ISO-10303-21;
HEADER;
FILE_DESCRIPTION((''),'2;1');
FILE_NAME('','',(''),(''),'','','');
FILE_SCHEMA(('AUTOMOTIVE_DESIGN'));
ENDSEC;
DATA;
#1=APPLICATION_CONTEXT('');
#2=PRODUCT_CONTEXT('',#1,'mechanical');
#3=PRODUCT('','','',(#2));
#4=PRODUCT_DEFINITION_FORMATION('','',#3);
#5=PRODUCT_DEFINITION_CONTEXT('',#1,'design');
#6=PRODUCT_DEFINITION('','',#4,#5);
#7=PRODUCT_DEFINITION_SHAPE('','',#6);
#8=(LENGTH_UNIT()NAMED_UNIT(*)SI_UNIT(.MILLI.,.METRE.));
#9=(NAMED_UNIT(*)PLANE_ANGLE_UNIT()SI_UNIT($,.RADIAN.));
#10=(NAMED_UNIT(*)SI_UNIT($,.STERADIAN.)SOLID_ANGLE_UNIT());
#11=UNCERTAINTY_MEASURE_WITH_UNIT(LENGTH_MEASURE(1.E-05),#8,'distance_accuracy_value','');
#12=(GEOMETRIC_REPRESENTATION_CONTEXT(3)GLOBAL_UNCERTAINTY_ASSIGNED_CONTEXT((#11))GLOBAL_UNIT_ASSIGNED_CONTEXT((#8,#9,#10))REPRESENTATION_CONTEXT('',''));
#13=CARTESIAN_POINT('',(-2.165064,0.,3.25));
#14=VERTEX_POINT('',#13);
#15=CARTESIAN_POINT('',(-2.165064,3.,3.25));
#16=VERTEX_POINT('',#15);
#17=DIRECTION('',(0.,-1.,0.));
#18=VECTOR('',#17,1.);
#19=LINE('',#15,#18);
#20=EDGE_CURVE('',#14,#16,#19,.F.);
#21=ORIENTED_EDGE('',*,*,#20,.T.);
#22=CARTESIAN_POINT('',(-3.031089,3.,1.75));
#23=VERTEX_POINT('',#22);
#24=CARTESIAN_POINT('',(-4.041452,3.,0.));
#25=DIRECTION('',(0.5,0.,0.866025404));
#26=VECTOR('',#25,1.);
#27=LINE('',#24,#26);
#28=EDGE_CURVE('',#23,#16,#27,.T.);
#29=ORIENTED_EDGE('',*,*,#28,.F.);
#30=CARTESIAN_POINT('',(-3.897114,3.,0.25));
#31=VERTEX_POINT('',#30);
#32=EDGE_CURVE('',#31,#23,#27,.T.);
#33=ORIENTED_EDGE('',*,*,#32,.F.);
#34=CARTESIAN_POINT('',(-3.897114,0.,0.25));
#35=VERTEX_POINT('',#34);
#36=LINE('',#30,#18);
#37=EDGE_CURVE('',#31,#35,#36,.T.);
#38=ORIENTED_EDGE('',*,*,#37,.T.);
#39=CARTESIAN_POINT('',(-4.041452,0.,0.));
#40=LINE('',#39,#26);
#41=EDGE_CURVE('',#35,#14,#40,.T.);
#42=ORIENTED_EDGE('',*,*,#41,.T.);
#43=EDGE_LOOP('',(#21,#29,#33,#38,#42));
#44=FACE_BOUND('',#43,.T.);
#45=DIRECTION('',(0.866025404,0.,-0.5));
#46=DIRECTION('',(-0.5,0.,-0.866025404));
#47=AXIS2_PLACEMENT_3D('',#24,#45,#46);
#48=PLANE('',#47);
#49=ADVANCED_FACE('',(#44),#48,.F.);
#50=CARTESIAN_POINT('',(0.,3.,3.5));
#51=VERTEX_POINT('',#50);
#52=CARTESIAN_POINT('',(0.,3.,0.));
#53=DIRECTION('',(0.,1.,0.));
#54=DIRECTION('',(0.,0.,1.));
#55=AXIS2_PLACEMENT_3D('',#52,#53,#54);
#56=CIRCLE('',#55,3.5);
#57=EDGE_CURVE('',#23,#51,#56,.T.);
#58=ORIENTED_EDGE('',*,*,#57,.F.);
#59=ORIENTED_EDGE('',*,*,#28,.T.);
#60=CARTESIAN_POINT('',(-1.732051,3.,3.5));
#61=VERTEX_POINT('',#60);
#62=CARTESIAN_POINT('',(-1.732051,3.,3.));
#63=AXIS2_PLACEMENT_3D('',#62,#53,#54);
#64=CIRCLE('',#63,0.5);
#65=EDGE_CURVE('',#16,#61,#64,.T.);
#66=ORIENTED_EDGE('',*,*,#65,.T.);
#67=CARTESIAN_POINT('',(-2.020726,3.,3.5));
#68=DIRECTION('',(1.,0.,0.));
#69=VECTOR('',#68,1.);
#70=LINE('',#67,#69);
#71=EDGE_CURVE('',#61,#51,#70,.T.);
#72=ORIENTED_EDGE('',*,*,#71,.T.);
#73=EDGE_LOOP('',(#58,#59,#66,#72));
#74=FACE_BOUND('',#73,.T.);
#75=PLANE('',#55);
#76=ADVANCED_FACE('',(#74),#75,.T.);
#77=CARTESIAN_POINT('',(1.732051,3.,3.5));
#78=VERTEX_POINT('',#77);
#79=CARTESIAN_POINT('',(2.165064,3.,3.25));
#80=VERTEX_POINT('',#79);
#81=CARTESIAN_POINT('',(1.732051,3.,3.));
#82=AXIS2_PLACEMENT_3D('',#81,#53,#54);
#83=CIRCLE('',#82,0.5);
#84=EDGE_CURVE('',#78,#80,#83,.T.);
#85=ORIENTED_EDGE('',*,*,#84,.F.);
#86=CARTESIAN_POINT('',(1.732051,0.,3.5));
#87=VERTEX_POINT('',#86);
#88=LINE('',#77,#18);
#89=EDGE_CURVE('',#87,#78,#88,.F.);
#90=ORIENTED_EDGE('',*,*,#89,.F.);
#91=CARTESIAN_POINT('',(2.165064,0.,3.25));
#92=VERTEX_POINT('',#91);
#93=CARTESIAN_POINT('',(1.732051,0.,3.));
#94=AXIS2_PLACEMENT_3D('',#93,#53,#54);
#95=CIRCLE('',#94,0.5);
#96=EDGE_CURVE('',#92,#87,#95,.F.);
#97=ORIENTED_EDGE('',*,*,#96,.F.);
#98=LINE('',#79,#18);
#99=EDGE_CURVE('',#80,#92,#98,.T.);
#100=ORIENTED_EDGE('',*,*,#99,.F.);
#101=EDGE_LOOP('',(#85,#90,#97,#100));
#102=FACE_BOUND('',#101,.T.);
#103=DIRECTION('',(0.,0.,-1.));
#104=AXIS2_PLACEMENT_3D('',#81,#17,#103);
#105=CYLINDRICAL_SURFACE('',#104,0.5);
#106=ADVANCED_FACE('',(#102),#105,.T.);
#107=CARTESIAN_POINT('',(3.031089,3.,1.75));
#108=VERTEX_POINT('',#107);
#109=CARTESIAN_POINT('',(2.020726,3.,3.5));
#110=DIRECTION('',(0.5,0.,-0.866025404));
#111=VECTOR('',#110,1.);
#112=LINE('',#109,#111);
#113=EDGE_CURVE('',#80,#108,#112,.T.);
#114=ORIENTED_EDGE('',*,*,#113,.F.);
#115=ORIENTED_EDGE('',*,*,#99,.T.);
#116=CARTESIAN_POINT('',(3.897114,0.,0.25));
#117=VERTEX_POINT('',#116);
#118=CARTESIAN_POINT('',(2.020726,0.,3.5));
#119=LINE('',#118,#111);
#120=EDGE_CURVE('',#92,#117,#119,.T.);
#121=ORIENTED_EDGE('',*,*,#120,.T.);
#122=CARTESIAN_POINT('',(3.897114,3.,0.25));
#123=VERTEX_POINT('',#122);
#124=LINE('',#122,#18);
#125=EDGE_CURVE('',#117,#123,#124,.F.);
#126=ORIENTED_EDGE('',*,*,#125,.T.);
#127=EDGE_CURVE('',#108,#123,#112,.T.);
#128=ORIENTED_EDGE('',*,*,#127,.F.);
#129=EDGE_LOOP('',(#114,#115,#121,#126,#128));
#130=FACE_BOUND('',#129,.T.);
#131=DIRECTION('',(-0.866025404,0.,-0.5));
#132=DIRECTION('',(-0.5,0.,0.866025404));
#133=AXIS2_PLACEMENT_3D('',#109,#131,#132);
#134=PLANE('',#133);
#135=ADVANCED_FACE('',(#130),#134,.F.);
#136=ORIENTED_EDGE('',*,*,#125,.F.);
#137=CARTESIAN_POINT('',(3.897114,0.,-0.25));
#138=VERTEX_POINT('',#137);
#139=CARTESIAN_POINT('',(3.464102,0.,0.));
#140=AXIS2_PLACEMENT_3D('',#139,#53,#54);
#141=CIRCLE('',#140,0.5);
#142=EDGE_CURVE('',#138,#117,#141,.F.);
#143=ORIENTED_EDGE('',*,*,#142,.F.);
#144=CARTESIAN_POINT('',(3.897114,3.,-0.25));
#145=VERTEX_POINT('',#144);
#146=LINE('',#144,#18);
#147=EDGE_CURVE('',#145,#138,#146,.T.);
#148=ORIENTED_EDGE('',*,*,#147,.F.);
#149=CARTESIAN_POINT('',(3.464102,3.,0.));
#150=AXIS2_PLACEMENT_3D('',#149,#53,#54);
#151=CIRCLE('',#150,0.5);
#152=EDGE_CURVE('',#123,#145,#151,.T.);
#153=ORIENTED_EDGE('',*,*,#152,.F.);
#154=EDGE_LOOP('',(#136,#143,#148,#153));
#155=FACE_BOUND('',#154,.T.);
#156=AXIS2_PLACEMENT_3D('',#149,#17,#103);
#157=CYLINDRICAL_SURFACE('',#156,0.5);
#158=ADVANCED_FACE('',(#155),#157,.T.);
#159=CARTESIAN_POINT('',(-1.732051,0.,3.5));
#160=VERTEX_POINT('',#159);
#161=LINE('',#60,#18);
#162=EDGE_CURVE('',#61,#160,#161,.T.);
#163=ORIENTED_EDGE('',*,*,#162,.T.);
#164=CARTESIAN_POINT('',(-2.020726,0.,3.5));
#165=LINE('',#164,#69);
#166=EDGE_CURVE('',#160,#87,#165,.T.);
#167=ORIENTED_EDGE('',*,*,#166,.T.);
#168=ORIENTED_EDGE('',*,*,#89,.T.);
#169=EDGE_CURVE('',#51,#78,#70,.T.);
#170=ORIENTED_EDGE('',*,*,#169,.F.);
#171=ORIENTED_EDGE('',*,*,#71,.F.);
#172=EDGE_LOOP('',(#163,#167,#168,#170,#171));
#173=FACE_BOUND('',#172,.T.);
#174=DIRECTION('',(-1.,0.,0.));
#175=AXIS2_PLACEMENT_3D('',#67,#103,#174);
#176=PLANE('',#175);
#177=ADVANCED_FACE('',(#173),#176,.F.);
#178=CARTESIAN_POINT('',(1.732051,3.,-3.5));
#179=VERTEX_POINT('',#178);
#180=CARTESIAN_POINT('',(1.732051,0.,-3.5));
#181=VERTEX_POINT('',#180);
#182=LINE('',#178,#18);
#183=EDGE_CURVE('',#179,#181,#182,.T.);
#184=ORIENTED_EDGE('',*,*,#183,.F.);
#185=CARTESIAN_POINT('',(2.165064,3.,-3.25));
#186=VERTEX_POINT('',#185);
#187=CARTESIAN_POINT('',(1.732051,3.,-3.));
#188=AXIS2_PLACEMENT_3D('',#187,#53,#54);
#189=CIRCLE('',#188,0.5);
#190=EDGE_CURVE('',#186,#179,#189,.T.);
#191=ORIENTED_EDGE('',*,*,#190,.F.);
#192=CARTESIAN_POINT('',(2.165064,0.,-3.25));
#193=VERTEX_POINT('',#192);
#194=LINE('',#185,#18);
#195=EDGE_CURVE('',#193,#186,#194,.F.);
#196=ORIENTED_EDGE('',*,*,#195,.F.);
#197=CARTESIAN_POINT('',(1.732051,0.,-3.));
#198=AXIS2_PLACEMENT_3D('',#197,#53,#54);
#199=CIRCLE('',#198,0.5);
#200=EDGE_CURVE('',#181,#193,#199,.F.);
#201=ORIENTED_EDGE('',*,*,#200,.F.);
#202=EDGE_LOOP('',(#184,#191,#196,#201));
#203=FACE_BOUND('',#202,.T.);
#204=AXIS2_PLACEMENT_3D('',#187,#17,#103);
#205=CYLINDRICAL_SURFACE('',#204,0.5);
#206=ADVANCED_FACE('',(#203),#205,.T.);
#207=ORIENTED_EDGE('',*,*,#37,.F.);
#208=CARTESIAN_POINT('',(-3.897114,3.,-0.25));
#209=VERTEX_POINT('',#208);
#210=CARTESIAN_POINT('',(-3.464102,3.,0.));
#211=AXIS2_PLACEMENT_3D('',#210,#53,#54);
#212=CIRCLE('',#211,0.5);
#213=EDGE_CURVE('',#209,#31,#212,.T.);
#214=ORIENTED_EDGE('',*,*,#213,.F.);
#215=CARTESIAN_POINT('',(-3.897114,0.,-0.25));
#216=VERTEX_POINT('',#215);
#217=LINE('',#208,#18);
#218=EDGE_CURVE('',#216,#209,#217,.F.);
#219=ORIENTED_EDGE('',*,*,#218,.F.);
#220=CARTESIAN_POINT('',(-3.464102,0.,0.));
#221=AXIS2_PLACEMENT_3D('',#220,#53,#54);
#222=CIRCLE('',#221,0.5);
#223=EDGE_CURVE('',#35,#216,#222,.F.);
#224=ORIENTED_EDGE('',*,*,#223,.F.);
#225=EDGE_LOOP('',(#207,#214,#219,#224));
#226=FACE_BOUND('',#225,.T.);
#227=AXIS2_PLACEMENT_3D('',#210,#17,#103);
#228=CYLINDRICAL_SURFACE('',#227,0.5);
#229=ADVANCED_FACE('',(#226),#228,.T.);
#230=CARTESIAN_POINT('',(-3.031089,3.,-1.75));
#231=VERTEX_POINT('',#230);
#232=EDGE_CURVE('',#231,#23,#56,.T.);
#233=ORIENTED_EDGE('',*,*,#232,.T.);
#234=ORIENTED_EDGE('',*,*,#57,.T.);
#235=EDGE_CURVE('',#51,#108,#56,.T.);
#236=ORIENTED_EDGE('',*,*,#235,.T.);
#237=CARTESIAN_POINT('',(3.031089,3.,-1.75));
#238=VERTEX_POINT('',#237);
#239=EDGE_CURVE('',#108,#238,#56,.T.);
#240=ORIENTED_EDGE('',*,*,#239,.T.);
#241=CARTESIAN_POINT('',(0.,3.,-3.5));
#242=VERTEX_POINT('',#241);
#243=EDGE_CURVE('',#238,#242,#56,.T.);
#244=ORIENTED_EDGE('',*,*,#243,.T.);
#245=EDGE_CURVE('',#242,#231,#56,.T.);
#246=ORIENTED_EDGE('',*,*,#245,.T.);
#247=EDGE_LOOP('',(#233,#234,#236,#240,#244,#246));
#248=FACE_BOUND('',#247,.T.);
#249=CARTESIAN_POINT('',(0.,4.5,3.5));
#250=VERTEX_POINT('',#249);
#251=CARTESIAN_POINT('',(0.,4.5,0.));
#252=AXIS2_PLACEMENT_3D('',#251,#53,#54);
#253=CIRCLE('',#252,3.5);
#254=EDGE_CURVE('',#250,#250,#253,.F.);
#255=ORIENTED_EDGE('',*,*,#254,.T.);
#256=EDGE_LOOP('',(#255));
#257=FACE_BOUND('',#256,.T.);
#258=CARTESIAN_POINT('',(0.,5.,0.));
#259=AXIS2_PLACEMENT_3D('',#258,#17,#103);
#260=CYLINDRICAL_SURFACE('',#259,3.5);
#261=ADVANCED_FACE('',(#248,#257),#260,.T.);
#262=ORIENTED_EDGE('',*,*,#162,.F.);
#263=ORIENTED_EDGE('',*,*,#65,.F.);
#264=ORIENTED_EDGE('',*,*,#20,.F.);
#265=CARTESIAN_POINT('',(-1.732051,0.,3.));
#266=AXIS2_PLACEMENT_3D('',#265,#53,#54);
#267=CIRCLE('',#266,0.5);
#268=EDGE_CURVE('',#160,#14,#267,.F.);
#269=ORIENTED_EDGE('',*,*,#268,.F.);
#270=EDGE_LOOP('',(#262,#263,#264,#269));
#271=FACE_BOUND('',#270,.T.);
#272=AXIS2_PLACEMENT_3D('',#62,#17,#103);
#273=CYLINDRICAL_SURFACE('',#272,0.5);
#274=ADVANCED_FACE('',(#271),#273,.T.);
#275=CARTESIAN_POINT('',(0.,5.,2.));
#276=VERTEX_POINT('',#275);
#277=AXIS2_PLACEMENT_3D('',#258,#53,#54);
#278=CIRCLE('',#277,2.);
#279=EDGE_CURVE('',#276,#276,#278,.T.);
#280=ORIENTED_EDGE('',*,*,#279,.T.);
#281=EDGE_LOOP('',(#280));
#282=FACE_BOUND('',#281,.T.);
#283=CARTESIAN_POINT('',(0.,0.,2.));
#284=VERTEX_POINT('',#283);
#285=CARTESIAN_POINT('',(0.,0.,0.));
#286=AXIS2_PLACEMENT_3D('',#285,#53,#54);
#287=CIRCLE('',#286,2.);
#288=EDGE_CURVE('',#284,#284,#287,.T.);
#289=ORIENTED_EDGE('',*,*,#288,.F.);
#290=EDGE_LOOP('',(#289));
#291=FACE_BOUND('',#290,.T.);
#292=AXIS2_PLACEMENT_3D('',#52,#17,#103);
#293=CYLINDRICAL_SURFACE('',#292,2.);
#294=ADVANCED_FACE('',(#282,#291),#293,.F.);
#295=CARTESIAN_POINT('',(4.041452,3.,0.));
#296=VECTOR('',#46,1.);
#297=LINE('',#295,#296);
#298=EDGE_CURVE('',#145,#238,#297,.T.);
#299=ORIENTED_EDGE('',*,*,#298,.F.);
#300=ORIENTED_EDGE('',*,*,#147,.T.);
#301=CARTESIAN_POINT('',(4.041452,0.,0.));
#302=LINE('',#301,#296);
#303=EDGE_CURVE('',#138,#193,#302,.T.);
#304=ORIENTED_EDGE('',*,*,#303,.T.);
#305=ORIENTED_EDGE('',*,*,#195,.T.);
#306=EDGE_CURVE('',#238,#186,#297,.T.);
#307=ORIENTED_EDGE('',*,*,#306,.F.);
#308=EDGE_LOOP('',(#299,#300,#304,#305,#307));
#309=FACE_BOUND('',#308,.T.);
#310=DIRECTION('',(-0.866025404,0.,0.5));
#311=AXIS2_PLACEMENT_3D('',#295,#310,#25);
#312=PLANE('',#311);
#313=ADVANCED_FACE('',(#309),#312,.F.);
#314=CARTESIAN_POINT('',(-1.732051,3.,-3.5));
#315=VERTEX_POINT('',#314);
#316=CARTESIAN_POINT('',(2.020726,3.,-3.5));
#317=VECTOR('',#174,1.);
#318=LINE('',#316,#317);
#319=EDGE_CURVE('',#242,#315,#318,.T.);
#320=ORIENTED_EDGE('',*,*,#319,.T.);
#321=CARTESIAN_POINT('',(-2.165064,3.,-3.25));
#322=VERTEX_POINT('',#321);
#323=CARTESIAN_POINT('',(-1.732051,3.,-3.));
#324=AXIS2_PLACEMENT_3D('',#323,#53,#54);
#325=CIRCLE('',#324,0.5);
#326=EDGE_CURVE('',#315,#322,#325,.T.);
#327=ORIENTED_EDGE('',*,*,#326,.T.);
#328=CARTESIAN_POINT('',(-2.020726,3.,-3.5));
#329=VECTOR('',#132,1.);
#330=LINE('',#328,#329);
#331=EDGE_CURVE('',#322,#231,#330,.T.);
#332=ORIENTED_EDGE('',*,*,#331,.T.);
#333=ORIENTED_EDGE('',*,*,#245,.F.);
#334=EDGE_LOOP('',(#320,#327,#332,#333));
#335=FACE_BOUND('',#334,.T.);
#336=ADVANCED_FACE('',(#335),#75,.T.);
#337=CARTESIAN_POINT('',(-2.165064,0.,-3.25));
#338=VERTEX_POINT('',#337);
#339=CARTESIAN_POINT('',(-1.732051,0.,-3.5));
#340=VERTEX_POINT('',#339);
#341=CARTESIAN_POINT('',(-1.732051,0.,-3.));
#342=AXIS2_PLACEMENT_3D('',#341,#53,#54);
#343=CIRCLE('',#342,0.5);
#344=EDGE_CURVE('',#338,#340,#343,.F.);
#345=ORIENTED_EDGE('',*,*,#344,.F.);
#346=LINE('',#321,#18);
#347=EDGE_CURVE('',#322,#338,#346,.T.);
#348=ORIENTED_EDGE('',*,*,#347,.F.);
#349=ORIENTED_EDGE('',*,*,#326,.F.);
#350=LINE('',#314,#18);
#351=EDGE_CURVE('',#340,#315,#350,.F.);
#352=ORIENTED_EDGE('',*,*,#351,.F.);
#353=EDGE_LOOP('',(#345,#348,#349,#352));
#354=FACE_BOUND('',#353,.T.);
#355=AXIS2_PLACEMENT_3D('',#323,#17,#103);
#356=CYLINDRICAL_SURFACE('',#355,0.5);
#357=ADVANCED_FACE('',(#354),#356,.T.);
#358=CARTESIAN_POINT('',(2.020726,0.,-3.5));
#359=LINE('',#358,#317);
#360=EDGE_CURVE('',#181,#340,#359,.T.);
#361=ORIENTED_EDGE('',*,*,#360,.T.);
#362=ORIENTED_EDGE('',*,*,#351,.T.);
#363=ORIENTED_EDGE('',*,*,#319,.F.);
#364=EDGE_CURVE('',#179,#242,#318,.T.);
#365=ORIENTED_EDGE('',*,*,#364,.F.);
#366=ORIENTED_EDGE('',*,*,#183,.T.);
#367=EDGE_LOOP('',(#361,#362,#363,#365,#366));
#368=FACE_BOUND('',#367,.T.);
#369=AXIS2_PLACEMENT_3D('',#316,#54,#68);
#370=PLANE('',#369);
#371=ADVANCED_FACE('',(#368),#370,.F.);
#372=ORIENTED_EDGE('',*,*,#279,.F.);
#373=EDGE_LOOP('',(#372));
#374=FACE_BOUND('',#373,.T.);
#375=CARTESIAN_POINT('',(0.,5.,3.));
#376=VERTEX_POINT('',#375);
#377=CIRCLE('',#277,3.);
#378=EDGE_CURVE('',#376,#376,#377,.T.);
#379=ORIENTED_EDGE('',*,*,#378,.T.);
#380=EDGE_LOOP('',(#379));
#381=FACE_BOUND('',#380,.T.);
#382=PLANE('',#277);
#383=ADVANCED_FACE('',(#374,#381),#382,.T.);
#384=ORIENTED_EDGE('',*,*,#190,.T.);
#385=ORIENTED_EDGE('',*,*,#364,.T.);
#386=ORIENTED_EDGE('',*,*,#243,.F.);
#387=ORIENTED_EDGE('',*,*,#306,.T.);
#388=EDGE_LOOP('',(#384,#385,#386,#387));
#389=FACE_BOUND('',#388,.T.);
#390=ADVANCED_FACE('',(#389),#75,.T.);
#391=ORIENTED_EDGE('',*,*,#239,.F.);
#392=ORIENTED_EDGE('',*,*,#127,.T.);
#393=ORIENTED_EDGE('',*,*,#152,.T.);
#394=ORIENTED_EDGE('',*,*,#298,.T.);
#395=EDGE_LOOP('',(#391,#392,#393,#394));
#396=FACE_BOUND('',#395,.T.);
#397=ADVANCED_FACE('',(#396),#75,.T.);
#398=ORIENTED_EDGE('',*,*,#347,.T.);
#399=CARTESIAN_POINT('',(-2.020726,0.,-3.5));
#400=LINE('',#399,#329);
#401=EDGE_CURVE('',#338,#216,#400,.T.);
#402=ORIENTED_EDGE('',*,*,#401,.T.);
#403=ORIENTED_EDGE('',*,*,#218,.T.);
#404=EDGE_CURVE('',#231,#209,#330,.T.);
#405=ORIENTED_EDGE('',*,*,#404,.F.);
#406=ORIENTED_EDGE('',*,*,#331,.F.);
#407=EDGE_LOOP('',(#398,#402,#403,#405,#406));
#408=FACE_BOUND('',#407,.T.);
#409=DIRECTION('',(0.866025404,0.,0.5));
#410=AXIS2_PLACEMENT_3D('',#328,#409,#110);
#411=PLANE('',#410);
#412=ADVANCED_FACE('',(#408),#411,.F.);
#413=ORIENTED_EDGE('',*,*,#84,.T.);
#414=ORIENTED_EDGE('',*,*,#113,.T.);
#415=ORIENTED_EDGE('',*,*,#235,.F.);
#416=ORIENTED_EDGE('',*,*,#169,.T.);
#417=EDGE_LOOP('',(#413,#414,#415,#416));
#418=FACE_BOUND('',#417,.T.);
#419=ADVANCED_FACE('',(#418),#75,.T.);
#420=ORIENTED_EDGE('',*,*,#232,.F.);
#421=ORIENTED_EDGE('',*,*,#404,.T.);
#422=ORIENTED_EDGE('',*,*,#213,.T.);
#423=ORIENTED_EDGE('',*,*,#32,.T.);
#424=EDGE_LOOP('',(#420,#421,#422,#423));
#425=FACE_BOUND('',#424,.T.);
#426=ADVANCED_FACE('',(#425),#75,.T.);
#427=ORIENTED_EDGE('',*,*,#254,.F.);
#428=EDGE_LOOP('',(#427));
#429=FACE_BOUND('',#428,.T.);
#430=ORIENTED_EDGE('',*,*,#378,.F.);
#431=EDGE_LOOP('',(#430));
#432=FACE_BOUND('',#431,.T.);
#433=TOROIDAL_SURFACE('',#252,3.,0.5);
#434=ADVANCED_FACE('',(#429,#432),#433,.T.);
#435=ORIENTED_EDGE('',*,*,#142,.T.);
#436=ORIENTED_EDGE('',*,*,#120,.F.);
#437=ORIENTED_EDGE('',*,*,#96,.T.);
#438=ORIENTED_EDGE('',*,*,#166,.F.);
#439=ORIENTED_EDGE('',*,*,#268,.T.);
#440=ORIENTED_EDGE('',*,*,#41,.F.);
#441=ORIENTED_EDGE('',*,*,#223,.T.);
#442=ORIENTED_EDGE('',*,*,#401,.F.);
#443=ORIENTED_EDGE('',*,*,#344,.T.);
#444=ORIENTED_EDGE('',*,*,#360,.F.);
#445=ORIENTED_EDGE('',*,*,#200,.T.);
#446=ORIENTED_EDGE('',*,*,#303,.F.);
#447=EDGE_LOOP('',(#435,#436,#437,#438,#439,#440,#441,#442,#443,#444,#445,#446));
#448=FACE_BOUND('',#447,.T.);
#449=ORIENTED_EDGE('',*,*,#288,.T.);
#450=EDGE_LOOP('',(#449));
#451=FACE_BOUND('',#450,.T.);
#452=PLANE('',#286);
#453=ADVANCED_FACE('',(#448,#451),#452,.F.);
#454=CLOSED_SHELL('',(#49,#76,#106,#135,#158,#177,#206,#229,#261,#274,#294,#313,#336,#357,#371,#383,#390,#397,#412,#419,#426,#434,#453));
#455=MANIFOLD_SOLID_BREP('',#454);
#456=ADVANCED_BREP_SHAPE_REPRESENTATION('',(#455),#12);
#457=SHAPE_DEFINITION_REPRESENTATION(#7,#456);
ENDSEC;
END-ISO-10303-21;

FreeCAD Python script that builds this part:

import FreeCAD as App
import Part
import Sketcher

V = App.Vector
Q = App.Units.Quantity


def edges_at(feature, points):
    """Names of the edges that pass closest to the given points."""
    edges = feature.Shape.Edges
    near = lambda p: min(range(len(edges)), key=lambda i: edges[i].distToShape(Part.Vertex(*p))[0])
    return sorted({f"Edge{near(p) + 1}" for p in points})

doc = App.newDocument("Part")
body = doc.addObject("PartDesign::Body", "Body")

sketch1 = doc.addObject("Sketcher::SketchObject", "Sketch")
body.addObject(sketch1)
sketch1.AttachmentSupport = (doc.XZ_Plane, [""])
sketch1.MapMode = "FlatFace"
sketch1.addGeometry([
    Part.LineSegment(V(4, 0, 0), V(2, -3.5, 0)),
    Part.LineSegment(V(2, -3.5, 0), V(-2, -3.5, 0)),
    Part.LineSegment(V(-2, -3.5, 0), V(-4, 0, 0)),
    Part.LineSegment(V(-4, 0, 0), V(-2, 3.5, 0)),
    Part.LineSegment(V(-2, 3.5, 0), V(2, 3.5, 0)),
    Part.LineSegment(V(2, 3.5, 0), V(4, 0, 0)),
    Part.Circle(V(0, 0, 0), V(0, 0, 1), 2),
], False)
sketch1.addConstraint([
    Sketcher.Constraint("Coincident", 0, 2, 1, 1),
    Sketcher.Constraint("Coincident", 1, 2, 2, 1),
    Sketcher.Constraint("Coincident", 2, 2, 3, 1),
    Sketcher.Constraint("Coincident", 3, 2, 4, 1),
    Sketcher.Constraint("Coincident", 4, 2, 5, 1),
    Sketcher.Constraint("Coincident", 5, 2, 0, 1),
    Sketcher.Constraint("Horizontal", 1),
    Sketcher.Constraint("Horizontal", 4),
    Sketcher.Constraint("Coincident", 6, 3, -1, 1),
    Sketcher.Constraint("Symmetric", 0, 2, 3, 2, -1, 1),
    Sketcher.Constraint("Symmetric", 2, 2, 5, 2, -1, 1),
    Sketcher.Constraint("PointOnObject", 2, 2, -1),
    Sketcher.Constraint("Parallel", 2, 5),
    Sketcher.Constraint("Vertical", 1, 2, 3, 2),
    Sketcher.Constraint("Diameter", 6, Q("4 mm")),
    Sketcher.Constraint("Angle", 0, Q("-120 deg")),
    Sketcher.Constraint("DistanceY", 1, 2, 3, 2, Q("7 mm")),
    Sketcher.Constraint("DistanceX", 1, 2, 1, 1, Q("4.041452 mm")),
])
pad1 = doc.addObject("PartDesign::Pad", "Pad")
body.addObject(pad1)
pad1.Profile = sketch1
pad1.Length = 3
pad1.Reversed = True

sketch2 = doc.addObject("Sketcher::SketchObject", "Sketch001")
body.addObject(sketch2)
sketch2.AttachmentSupport = (doc.XZ_Plane, [""])
sketch2.MapMode = "FlatFace"
sketch2.AttachmentOffset = App.Placement(V(0, 0, -3), App.Rotation())
sketch2.addGeometry([
    Part.Circle(V(0, 0, 0), V(0, 0, 1), 3.5),
    Part.Circle(V(0, 0, 0), V(0, 0, 1), 2),
], False)
sketch2.addConstraint([
    Sketcher.Constraint("Coincident", 0, 3, -1, 1),
    Sketcher.Constraint("Coincident", 1, 3, -1, 1),
    Sketcher.Constraint("Diameter", 0, Q("7 mm")),
    Sketcher.Constraint("Diameter", 1, Q("4 mm")),
])
pad2 = doc.addObject("PartDesign::Pad", "Pad001")
body.addObject(pad2)
pad2.Profile = sketch2
pad2.Length = 2
pad2.Reversed = True
doc.recompute()

fillet = doc.addObject("PartDesign::Fillet", "Fillet")
body.addObject(fillet)
fillet.Base = (pad2, edges_at(pad2, [(0, 5, -3.5)]))
fillet.Radius = 0.5
doc.recompute()

fillet2 = doc.addObject("PartDesign::Fillet", "Fillet001")
body.addObject(fillet2)
fillet2.Base = (fillet, edges_at(fillet, [
    (2.021, 1.5, 3.5),
    (-2.021, 1.5, 3.5),
    (-4.041, 1.5, 0),
    (-2.021, 1.5, -3.5),
    (2.021, 1.5, -3.5),
    (4.041, 1.5, 0),
]))
fillet2.Radius = 0.5

doc.recompute()
